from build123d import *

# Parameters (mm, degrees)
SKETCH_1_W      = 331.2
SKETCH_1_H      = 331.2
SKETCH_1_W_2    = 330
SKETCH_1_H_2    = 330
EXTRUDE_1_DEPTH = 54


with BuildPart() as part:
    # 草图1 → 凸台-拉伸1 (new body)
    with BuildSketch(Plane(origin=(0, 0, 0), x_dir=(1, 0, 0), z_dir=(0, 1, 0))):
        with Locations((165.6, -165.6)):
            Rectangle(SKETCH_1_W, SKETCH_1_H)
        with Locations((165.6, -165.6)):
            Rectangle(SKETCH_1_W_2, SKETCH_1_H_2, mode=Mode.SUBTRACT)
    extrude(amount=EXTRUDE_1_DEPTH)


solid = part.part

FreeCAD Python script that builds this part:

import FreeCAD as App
import Part
import Sketcher
from FreeCAD import Vector
Q = App.Units.Quantity


def add_polygon(sketch, points):
    """Adds a closed chain of lines whose ends are joined by coincident constraints."""
    first, n = sketch.GeometryCount, len(points)
    for a, b in zip(points, points[1:] + points[:1]):
        sketch.addGeometry(Part.LineSegment(App.Vector(*a, 0), App.Vector(*b, 0)), False)
    for i in range(n):
        sketch.addConstraint(Sketcher.Constraint("Coincident", first + i, 2, first + (i + 1) % n, 1))

doc = App.newDocument("Part")
body = doc.addObject("PartDesign::Body", "Body")

# Sketch on XZ plane
sketch1 = body.newObject("Sketcher::SketchObject", "Sketch")
sketch1.AttachmentSupport = (doc.getObject("XZ_Plane"), [""])
sketch1.MapMode = "FlatFace"
add_polygon(sketch1, [(0, 0), (0, 331), (331, 331), (331, 0)])  # lines 0-3
add_polygon(sketch1, [(331, 331), (1, 331), (1, 1), (331, 1)])  # lines 4-7
sketch1.addConstraint([
    Sketcher.Constraint("Vertical", 0),
    Sketcher.Constraint("Horizontal", 1),
    Sketcher.Constraint("Vertical", 2),
    Sketcher.Constraint("Horizontal", 3),
    Sketcher.Constraint("Horizontal", 4),
    Sketcher.Constraint("Vertical", 5),
    Sketcher.Constraint("Horizontal", 6),
    Sketcher.Constraint("Vertical", 7),
    Sketcher.Constraint("Coincident", 3, 2, -1, 1),
    Sketcher.Constraint("Equal", 3, 0),
    Sketcher.Constraint("Equal", 6, 5),
    Sketcher.Constraint("DistanceX", 4, 2, 4, 1, Q("330 mm")),
    Sketcher.Constraint("DistanceX", 1, 1, 1, 2, Q("331.2 mm")),
    Sketcher.Constraint("DistanceX", -1, 1, 4, 2, Q("0.6 mm")),
    Sketcher.Constraint("DistanceY", -1, 1, 4, 2, Q("330.6 mm")),
])
pad1 = body.newObject("PartDesign::Pad", "Pad")
pad1.Profile = sketch1
pad1.Length = 54
pad1.Reversed = True

doc.recompute()
